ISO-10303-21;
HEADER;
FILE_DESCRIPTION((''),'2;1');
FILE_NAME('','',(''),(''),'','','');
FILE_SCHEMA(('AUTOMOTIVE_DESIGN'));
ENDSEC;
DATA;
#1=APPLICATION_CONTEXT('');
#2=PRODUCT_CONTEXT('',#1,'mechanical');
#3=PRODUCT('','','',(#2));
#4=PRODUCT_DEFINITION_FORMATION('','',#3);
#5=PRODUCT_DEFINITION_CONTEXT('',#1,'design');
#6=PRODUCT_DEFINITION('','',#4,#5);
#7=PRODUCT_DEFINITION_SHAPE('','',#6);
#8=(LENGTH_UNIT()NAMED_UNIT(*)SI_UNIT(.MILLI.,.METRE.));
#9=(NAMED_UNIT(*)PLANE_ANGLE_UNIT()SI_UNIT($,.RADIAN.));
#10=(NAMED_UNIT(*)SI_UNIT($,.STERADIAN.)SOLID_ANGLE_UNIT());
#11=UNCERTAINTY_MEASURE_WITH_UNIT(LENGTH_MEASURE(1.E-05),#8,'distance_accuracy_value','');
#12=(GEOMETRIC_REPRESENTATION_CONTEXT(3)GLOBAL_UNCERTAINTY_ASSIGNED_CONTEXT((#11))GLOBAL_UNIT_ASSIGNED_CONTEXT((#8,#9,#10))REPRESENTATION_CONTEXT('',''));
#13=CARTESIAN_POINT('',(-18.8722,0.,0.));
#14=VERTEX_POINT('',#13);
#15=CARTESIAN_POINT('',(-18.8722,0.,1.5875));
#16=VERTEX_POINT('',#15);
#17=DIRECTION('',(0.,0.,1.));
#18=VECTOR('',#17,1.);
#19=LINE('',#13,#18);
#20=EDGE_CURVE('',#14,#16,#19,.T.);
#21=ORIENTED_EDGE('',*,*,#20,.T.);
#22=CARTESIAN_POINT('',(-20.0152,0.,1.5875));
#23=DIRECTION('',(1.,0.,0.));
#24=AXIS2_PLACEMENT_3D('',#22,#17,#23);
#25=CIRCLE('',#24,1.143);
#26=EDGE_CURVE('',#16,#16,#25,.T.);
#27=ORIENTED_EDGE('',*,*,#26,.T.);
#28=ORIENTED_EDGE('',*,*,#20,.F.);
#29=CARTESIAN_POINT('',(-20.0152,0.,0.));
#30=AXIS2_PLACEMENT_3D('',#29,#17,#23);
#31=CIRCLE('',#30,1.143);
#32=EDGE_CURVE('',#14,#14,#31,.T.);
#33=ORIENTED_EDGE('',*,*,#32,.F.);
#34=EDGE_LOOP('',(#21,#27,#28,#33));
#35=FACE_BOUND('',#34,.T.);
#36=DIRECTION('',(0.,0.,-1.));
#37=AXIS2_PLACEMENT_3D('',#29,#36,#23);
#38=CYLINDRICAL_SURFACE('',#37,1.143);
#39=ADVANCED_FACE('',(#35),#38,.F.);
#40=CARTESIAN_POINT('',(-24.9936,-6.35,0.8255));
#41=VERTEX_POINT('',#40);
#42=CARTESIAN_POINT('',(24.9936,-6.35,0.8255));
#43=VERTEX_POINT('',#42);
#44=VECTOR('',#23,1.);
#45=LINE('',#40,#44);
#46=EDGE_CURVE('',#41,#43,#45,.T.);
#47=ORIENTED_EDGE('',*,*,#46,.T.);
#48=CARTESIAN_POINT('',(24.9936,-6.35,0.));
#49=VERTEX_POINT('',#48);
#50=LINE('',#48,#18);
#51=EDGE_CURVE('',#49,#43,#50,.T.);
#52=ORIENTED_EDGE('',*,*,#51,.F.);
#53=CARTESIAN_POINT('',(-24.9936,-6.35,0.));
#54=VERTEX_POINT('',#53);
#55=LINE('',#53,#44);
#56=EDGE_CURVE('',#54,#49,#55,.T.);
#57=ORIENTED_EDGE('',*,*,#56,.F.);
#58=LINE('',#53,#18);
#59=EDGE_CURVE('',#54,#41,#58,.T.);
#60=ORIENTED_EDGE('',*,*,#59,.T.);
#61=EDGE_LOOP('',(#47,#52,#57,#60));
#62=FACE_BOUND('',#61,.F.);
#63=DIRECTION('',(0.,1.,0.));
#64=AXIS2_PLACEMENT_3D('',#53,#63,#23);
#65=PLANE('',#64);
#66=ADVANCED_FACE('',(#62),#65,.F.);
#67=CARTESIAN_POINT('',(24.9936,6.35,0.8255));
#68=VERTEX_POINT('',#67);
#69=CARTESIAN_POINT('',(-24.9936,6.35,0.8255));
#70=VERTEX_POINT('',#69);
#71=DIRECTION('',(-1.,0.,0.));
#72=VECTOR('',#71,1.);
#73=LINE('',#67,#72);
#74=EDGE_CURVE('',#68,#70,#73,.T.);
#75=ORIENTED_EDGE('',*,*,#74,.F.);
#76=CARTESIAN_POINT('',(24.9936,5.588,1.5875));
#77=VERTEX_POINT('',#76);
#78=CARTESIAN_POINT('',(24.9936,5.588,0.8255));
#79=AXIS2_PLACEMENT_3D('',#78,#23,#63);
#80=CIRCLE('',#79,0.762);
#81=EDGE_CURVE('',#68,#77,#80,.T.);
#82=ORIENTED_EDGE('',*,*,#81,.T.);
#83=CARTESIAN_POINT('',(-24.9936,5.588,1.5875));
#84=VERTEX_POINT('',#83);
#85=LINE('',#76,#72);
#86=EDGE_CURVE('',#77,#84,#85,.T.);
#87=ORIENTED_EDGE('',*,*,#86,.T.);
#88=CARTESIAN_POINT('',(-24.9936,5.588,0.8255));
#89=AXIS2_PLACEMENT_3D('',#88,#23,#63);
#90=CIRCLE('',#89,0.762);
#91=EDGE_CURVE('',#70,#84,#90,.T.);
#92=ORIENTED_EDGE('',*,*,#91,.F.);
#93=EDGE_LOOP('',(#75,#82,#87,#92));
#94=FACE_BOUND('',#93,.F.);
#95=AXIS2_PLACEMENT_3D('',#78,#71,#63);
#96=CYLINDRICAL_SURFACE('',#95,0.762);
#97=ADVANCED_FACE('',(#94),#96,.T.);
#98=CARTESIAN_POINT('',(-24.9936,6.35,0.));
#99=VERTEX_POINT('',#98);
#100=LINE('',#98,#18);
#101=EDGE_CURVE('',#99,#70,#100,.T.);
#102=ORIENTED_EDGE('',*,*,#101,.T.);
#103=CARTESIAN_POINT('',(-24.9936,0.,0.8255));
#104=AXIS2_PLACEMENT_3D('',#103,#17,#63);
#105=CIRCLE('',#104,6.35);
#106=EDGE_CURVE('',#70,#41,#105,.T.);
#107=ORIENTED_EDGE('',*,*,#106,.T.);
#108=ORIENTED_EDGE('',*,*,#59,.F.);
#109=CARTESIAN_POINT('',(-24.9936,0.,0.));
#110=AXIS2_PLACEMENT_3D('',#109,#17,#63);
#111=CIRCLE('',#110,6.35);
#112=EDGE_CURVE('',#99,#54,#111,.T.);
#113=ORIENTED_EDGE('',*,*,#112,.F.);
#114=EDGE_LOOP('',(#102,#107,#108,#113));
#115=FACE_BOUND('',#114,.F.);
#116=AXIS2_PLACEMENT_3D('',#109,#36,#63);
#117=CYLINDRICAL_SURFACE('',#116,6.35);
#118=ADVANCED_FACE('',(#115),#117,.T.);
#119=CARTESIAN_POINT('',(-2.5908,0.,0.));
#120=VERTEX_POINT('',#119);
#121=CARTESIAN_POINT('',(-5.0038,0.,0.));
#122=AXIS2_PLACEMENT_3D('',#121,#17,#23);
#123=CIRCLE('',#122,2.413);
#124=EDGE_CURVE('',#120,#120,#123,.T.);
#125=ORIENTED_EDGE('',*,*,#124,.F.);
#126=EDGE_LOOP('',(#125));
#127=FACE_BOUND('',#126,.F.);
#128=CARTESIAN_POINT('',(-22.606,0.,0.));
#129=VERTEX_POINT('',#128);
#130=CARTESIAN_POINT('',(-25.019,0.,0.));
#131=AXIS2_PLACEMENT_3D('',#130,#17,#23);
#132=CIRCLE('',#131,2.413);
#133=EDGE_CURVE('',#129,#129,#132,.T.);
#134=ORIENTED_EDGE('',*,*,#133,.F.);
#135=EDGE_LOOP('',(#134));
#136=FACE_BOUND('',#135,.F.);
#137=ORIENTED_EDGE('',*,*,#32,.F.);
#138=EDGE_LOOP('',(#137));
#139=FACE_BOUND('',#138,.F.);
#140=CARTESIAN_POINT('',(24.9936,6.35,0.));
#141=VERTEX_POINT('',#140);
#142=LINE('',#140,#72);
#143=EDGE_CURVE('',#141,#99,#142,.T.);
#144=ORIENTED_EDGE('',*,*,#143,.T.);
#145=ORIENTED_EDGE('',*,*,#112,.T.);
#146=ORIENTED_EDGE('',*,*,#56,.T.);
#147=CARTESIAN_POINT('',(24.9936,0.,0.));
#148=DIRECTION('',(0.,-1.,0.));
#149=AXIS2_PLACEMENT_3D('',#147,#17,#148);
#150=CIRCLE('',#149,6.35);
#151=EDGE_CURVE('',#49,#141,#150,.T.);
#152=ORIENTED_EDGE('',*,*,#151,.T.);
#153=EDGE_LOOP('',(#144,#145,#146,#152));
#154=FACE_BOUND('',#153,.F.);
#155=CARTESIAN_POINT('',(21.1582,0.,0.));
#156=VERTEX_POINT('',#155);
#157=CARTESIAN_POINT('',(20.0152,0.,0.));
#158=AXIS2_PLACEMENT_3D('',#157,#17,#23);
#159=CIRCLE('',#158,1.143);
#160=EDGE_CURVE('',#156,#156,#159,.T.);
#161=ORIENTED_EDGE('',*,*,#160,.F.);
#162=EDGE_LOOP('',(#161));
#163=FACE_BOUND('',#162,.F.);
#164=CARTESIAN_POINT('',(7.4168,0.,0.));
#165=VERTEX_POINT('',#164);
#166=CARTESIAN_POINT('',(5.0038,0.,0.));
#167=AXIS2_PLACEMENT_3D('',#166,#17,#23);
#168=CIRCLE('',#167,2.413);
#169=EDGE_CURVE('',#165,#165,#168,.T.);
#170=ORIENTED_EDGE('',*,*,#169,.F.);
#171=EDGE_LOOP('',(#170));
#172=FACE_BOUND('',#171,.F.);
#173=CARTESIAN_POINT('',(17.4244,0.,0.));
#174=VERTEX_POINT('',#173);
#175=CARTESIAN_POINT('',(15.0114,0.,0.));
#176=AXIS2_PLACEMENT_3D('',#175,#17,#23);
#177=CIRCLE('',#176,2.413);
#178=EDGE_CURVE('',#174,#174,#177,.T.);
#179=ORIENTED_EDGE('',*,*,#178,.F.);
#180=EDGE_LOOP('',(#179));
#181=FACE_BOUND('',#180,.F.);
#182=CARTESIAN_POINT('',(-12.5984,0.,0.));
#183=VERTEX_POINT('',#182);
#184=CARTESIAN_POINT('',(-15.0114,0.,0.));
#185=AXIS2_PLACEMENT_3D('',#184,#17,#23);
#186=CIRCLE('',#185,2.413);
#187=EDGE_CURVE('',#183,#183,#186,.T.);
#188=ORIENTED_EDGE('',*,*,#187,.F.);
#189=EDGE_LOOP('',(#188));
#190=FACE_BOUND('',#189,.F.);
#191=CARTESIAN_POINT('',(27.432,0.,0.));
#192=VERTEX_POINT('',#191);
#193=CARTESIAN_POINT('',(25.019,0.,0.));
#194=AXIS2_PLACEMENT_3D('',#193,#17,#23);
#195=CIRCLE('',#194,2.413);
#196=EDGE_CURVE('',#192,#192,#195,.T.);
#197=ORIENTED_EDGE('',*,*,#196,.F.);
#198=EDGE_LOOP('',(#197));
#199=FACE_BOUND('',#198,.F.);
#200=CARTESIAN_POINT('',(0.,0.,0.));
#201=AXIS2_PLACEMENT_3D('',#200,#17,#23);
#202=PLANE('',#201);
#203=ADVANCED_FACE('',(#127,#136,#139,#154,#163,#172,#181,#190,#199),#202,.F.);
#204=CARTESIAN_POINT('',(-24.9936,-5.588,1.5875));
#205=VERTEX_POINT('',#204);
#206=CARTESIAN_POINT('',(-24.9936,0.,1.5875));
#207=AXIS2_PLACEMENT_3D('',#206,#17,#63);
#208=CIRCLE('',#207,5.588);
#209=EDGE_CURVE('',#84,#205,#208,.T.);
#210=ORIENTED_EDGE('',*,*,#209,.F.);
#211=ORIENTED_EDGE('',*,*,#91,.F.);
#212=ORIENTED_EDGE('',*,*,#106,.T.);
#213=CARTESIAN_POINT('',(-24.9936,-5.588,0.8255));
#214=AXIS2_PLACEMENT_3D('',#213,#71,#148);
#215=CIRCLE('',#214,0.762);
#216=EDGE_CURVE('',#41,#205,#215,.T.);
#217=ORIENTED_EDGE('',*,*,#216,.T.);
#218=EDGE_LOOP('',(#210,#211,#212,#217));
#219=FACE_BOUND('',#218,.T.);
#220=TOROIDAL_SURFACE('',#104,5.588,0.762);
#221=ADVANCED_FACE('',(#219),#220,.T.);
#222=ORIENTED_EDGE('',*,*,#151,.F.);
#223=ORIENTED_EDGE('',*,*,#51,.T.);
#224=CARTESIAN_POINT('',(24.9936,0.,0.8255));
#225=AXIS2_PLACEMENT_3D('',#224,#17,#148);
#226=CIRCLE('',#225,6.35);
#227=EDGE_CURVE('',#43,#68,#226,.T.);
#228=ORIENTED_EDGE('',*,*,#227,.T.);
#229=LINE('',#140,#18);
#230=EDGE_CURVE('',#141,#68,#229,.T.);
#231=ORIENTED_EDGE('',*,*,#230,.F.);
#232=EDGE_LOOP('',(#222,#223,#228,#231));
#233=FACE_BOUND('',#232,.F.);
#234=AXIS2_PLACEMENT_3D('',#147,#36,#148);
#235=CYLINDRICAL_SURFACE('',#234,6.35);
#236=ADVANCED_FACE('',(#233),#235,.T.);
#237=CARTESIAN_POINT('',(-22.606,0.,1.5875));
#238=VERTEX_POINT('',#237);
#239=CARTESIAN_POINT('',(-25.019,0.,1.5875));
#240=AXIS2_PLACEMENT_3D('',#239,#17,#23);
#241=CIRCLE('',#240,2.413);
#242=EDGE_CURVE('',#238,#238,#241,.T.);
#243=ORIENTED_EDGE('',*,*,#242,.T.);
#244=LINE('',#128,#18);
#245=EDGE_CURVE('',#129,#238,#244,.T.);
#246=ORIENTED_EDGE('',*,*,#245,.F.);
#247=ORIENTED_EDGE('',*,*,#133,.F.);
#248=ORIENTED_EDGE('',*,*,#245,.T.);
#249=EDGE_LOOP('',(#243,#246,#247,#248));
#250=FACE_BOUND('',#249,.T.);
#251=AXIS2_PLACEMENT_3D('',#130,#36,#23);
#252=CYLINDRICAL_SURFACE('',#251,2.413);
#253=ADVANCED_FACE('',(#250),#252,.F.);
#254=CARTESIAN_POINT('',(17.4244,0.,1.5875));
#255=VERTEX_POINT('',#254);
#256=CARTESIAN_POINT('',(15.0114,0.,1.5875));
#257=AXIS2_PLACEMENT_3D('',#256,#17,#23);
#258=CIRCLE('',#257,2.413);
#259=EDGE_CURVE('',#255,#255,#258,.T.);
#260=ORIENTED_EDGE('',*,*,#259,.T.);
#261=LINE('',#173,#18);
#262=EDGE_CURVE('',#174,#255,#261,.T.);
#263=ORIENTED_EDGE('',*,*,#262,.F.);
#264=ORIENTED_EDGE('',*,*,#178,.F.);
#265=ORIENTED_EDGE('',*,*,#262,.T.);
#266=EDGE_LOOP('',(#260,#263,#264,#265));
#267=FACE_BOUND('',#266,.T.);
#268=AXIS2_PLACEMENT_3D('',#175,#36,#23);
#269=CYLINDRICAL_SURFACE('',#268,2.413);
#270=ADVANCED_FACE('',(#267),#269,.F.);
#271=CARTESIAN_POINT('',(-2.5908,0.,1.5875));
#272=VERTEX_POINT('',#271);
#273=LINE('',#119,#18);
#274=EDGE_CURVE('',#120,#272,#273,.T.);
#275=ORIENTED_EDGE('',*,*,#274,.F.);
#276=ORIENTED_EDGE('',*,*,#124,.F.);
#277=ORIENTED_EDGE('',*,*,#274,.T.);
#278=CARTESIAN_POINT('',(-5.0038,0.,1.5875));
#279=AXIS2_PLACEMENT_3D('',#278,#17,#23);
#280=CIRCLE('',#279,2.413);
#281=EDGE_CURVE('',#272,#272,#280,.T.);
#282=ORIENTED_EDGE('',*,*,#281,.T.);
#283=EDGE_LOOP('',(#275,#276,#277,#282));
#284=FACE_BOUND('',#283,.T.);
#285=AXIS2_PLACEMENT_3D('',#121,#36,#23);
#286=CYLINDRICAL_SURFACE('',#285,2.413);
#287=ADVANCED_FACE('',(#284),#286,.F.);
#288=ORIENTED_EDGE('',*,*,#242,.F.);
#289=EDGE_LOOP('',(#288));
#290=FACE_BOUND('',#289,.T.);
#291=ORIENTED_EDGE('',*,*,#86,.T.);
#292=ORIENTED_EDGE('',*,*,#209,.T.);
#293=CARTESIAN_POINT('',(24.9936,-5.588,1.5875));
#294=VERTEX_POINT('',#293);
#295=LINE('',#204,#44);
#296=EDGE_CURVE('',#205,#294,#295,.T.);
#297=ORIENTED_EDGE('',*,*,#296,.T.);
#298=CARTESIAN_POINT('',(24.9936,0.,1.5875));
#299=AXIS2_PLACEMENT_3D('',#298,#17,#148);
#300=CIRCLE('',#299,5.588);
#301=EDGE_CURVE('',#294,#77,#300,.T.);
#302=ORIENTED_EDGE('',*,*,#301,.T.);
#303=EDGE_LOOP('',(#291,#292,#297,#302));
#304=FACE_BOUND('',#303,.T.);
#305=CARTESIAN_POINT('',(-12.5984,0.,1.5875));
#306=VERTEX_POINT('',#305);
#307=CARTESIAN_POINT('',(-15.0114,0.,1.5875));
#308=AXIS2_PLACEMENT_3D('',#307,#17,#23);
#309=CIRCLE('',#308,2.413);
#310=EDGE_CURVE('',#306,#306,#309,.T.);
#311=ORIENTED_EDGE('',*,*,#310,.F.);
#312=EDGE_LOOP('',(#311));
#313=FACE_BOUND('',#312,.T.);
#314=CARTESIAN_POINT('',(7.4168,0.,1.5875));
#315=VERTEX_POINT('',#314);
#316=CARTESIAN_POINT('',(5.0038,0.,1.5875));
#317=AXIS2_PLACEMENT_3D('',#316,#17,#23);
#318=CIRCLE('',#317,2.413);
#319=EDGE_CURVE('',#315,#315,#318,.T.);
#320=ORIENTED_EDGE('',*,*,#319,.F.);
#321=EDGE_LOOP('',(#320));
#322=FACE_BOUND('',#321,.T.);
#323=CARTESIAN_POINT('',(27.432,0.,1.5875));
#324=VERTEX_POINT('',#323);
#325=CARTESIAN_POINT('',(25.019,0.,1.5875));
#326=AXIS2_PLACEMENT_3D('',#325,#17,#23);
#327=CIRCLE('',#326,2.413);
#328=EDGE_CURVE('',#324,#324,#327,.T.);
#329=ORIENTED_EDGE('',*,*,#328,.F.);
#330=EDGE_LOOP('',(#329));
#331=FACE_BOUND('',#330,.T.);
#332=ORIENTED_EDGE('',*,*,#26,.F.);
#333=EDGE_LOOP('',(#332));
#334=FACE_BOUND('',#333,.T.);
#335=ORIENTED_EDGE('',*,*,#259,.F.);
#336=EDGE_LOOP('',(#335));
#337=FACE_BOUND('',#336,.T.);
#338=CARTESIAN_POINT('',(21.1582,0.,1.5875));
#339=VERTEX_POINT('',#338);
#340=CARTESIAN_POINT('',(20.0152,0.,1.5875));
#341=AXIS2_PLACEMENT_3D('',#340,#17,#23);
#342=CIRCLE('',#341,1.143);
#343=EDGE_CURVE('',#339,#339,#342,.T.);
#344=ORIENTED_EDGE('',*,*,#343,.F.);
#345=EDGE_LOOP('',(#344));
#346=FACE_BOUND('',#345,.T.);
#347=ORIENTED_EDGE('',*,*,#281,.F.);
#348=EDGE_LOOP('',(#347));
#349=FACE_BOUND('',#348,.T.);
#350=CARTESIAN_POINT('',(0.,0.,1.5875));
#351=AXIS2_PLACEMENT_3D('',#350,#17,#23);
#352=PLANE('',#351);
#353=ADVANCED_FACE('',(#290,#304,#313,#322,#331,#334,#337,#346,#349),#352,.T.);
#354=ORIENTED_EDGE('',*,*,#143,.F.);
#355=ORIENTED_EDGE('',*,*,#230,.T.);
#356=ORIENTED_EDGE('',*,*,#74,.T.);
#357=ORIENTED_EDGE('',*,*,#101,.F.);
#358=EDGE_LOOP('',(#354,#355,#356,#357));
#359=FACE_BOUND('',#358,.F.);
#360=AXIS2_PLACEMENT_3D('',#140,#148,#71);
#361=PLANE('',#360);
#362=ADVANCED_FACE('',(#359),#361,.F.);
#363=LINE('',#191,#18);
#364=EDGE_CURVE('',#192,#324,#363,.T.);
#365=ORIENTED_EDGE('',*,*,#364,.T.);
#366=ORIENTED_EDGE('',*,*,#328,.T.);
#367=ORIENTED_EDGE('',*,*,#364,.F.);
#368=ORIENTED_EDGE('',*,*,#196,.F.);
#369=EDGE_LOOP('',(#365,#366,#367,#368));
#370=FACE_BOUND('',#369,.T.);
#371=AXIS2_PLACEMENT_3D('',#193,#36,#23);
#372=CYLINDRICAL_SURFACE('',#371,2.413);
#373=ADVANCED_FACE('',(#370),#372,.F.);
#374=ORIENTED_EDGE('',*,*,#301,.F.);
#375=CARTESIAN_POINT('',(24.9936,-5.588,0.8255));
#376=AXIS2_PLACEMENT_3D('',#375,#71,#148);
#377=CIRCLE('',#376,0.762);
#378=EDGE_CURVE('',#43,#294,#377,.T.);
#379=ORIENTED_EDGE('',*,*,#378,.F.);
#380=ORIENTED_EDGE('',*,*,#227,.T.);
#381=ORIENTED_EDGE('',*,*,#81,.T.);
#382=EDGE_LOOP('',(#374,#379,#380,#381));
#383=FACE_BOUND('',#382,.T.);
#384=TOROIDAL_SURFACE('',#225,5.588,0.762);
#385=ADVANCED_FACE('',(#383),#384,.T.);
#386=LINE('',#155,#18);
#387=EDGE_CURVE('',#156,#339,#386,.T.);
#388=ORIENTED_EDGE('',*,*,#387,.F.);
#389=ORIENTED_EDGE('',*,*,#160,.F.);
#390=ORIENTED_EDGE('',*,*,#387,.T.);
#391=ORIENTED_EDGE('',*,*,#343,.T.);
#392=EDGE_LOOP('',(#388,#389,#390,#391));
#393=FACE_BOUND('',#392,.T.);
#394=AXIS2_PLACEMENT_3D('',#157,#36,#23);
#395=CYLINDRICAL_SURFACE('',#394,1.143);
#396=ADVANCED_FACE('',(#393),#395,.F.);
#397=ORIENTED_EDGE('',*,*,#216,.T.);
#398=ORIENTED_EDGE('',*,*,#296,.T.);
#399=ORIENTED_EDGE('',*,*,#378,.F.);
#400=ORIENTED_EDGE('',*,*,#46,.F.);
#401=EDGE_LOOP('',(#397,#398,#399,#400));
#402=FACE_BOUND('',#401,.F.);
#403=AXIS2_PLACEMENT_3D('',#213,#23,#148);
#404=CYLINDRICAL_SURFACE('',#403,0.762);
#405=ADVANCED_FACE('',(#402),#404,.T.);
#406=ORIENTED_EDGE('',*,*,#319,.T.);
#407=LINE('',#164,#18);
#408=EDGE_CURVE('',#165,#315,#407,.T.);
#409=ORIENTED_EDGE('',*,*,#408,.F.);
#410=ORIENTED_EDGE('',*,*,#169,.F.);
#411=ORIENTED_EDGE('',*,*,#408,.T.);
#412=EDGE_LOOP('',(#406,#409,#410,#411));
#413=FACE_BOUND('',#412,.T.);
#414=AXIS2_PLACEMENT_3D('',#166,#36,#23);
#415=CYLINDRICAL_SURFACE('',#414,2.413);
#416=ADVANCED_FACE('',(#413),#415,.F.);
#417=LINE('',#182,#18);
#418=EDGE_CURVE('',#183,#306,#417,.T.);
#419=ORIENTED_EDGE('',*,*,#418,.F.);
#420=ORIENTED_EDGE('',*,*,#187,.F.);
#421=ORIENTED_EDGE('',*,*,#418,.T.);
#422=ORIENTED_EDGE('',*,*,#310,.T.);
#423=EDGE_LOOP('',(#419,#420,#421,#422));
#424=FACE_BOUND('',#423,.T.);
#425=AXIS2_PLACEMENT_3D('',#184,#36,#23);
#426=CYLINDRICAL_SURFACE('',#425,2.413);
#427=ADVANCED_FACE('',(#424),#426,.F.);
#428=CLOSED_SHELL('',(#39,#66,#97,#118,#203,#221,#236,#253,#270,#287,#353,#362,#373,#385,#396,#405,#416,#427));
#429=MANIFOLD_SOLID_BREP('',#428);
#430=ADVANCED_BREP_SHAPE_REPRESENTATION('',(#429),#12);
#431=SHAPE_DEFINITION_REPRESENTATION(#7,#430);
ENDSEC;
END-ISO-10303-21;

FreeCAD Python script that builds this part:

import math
import FreeCAD as App
import Part
import Sketcher

V = App.Vector
Q = App.Units.Quantity


def edges_at(feature, points):
    """Names of the edges that pass closest to the given points."""
    edges = feature.Shape.Edges
    near = lambda p: min(range(len(edges)), key=lambda i: edges[i].distToShape(Part.Vertex(*p))[0])
    return sorted({f"Edge{near(p) + 1}" for p in points})

doc = App.newDocument("Part")
body = doc.addObject("PartDesign::Body", "Body")

sketch1 = body.newObject("Sketcher::SketchObject", "Sketch")
sketch1.AttachmentSupport = (doc.getObject("XY_Plane"), [""])
sketch1.MapMode = "FlatFace"
sketch1.addGeometry(Part.LineSegment(V(25, 6.3, 0), V(-25, 6.3, 0)), False)
sketch1.addGeometry(Part.ArcOfCircle(Part.Circle(V(-25, 0, 0), V(0, 0, 1), 6.3), math.radians(90), math.radians(270)), False)
sketch1.addGeometry(Part.LineSegment(V(-25, -6.3, 0), V(25, -6.3, 0)), False)
sketch1.addGeometry(Part.ArcOfCircle(Part.Circle(V(25, 0, 0), V(0, 0, 1), 6.3), math.radians(-90), math.radians(90)), False)
sketch1.addGeometry(Part.Circle(V(-25, 0, 0), V(0, 0, 1), 2.4), False)
sketch1.addGeometry(Part.Circle(V(-20, 0, 0), V(0, 0, 1), 1.1), False)
sketch1.addGeometry(Part.Circle(V(-15, 0, 0), V(0, 0, 1), 2.4), False)
sketch1.addGeometry(Part.Circle(V(-5, 0, 0), V(0, 0, 1), 2.4), False)
sketch1.addGeometry(Part.Circle(V(5, 0, 0), V(0, 0, 1), 2.4), False)
sketch1.addGeometry(Part.Circle(V(15, 0, 0), V(0, 0, 1), 2.4), False)
sketch1.addGeometry(Part.Circle(V(20, 0, 0), V(0, 0, 1), 1.1), False)
sketch1.addGeometry(Part.Circle(V(25, 0, 0), V(0, 0, 1), 2.4), False)
sketch1.addConstraint(Sketcher.Constraint("Tangent", 0, 2, 1, 1))
sketch1.addConstraint(Sketcher.Constraint("Tangent", 1, 2, 2, 1))
sketch1.addConstraint(Sketcher.Constraint("Tangent", 2, 2, 3, 1))
sketch1.addConstraint(Sketcher.Constraint("Tangent", 3, 2, 0, 1))
sketch1.addConstraint(Sketcher.Constraint("Horizontal", 0))
sketch1.addConstraint(Sketcher.Constraint("Horizontal", 2))
sketch1.addConstraint(Sketcher.Constraint("Equal", 4, 6))
sketch1.addConstraint(Sketcher.Constraint("Equal", 6, 7))
sketch1.addConstraint(Sketcher.Constraint("Equal", 7, 8))
sketch1.addConstraint(Sketcher.Constraint("Equal", 8, 9))
sketch1.addConstraint(Sketcher.Constraint("Equal", 5, 10))
sketch1.addConstraint(Sketcher.Constraint("Equal", 9, 11))
sketch1.addConstraint(Sketcher.Constraint("Symmetric", 1, 3, 3, 3, -1, 1))
sketch1.addConstraint(Sketcher.Constraint("Symmetric", 7, 3, 8, 3, -1, 1))
sketch1.addConstraint(Sketcher.Constraint("Symmetric", 6, 3, 9, 3, -1, 1))
sketch1.addConstraint(Sketcher.Constraint("Symmetric", 5, 3, 10, 3, -1, 1))
sketch1.addConstraint(Sketcher.Constraint("Symmetric", 4, 3, 11, 3, -1, 1))
sketch1.addConstraint(Sketcher.Constraint("PointOnObject", 4, 3, -1))
sketch1.addConstraint(Sketcher.Constraint("PointOnObject", 5, 3, -1))
sketch1.addConstraint(Sketcher.Constraint("PointOnObject", 6, 3, -1))
sketch1.addConstraint(Sketcher.Constraint("PointOnObject", 7, 3, -1))
sketch1.addConstraint(Sketcher.Constraint("Diameter", 4, Q("0.19 in")))
sketch1.addConstraint(Sketcher.Constraint("Diameter", 5, Q("0.09 in")))
sketch1.addConstraint(Sketcher.Constraint("Radius", 1, Q("0.25 in")))
sketch1.addConstraint(Sketcher.Constraint("DistanceX", 0, 2, 0, 1, Q("1.968 in")))
sketch1.addConstraint(Sketcher.Constraint("DistanceX", 4, 3, -1, 1, Q("0.985 in")))
sketch1.addConstraint(Sketcher.Constraint("DistanceX", 5, 3, -1, 1, Q("0.788 in")))
sketch1.addConstraint(Sketcher.Constraint("DistanceX", 6, 3, -1, 1, Q("0.591 in")))
sketch1.addConstraint(Sketcher.Constraint("DistanceX", 7, 3, -1, 1, Q("0.197 in")))
pad1 = body.newObject("PartDesign::Pad", "Pad")
pad1.Profile = sketch1
pad1.Length = Q("0.0625 in")
doc.recompute()

fillet = body.newObject("PartDesign::Fillet", "Fillet")
fillet.Base = (pad1, edges_at(pad1, [(-31.344, 0, 1.587)]))
fillet.Radius = Q("0.03 in")

doc.recompute()
